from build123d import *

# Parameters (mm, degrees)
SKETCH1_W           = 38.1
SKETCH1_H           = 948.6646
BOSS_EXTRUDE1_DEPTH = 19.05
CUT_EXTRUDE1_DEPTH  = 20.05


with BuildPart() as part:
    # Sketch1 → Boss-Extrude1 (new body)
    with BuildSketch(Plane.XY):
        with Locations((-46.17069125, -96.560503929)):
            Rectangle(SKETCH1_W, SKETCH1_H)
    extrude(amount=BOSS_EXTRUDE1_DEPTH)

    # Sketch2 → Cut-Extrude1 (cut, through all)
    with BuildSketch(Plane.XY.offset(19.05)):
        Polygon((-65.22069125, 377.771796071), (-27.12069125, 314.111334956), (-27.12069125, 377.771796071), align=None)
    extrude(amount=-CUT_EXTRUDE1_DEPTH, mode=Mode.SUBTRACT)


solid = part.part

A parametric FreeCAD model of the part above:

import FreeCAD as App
import Part
import Sketcher

V = App.Vector
Q = App.Units.Quantity

doc = App.newDocument("Part")
params = doc.addObject("Spreadsheet::Sheet", "Params")
for row, (alias, value) in enumerate([
    ("sketch1_width", "1.5 in"),
    ("sketch1_height", "37.349 in"),
    ("pad1_length", "0.75 in"),
    ("sketch2_width", "1.5 in"),
], start=1):
    params.set(f"A{row}", alias)
    params.set(f"B{row}", "=" + value)
    params.setAlias(f"B{row}", alias)

body = doc.addObject("PartDesign::Body", "Body")

sketch1 = body.newObject("Sketcher::SketchObject", "Sketch")
sketch1.AttachmentSupport = (doc.getObject("XY_Plane"), [""])
sketch1.MapMode = "FlatFace"
sketch1.addGeometry([
    Part.LineSegment(V(-65.220691, 377.771796, 0), V(-65.220691, -570.892804, 0)),
    Part.LineSegment(V(-65.220691, -570.892804, 0), V(-27.120691, -570.892804, 0)),
    Part.LineSegment(V(-27.120691, -570.892804, 0), V(-27.120691, 377.771796, 0)),
    Part.LineSegment(V(-27.120691, 377.771796, 0), V(-65.220691, 377.771796, 0)),
], False)
sketch1.addConstraint([
    Sketcher.Constraint("Coincident", 0, 2, 1, 1),
    Sketcher.Constraint("Coincident", 1, 2, 2, 1),
    Sketcher.Constraint("Coincident", 2, 2, 3, 1),
    Sketcher.Constraint("Coincident", 3, 2, 0, 1),
    Sketcher.Constraint("Vertical", 0),
    Sketcher.Constraint("Horizontal", 1),
    Sketcher.Constraint("Vertical", 2),
    Sketcher.Constraint("Horizontal", 3),
    Sketcher.Constraint("DistanceX", 1, 1, 1, 2, Q("1.5 in")),
    Sketcher.Constraint("DistanceY", 0, 2, 0, 1, Q("37.349 in")),
    Sketcher.Constraint("DistanceX", 0, 2, -1, 1, 65.220691),
    Sketcher.Constraint("DistanceY", 0, 2, -1, 1, 570.892804),
])
sketch1.setExpression("Constraints[8]", "Params.sketch1_width")
sketch1.setExpression("Constraints[9]", "Params.sketch1_height")
pad1 = body.newObject("PartDesign::Pad", "Pad")
pad1.Profile = sketch1
pad1.setExpression("Length", "Params.pad1_length")

sketch2 = body.newObject("Sketcher::SketchObject", "Sketch001")
sketch2.AttachmentSupport = (doc.getObject("XY_Plane"), [""])
sketch2.MapMode = "FlatFace"
sketch2.AttachmentOffset = App.Placement(V(0, 0, 0.75 * 25.4), App.Rotation())
sketch2.addGeometry([
    Part.LineSegment(V(-65.220691, 377.771796, 0), V(-27.120691, 314.111335, 0)),
    Part.LineSegment(V(-27.120691, 314.111335, 0), V(-27.120691, 377.771796, 0)),
    Part.LineSegment(V(-27.120691, 377.771796, 0), V(-65.220691, 377.771796, 0)),
], False)
sketch2.addConstraint([
    Sketcher.Constraint("Coincident", 0, 2, 1, 1),
    Sketcher.Constraint("Coincident", 1, 2, 2, 1),
    Sketcher.Constraint("Coincident", 2, 2, 0, 1),
    Sketcher.Constraint("Vertical", 1),
    Sketcher.Constraint("Horizontal", 2),
    Sketcher.Constraint("DistanceX", 2, 2, 2, 1, Q("1.5 in")),
    Sketcher.Constraint("Angle", 0, Q("-59.1 deg")),
    Sketcher.Constraint("DistanceX", 0, 2, -1, 1, 27.120691),
    Sketcher.Constraint("DistanceY", -1, 1, 0, 2, 314.111335),
])
sketch2.setExpression("Constraints[5]", "Params.sketch2_width")
pocket1 = body.newObject("PartDesign::Pocket", "Pocket")
pocket1.Profile = sketch2
pocket1.Type = "ThroughAll"

doc.recompute()
